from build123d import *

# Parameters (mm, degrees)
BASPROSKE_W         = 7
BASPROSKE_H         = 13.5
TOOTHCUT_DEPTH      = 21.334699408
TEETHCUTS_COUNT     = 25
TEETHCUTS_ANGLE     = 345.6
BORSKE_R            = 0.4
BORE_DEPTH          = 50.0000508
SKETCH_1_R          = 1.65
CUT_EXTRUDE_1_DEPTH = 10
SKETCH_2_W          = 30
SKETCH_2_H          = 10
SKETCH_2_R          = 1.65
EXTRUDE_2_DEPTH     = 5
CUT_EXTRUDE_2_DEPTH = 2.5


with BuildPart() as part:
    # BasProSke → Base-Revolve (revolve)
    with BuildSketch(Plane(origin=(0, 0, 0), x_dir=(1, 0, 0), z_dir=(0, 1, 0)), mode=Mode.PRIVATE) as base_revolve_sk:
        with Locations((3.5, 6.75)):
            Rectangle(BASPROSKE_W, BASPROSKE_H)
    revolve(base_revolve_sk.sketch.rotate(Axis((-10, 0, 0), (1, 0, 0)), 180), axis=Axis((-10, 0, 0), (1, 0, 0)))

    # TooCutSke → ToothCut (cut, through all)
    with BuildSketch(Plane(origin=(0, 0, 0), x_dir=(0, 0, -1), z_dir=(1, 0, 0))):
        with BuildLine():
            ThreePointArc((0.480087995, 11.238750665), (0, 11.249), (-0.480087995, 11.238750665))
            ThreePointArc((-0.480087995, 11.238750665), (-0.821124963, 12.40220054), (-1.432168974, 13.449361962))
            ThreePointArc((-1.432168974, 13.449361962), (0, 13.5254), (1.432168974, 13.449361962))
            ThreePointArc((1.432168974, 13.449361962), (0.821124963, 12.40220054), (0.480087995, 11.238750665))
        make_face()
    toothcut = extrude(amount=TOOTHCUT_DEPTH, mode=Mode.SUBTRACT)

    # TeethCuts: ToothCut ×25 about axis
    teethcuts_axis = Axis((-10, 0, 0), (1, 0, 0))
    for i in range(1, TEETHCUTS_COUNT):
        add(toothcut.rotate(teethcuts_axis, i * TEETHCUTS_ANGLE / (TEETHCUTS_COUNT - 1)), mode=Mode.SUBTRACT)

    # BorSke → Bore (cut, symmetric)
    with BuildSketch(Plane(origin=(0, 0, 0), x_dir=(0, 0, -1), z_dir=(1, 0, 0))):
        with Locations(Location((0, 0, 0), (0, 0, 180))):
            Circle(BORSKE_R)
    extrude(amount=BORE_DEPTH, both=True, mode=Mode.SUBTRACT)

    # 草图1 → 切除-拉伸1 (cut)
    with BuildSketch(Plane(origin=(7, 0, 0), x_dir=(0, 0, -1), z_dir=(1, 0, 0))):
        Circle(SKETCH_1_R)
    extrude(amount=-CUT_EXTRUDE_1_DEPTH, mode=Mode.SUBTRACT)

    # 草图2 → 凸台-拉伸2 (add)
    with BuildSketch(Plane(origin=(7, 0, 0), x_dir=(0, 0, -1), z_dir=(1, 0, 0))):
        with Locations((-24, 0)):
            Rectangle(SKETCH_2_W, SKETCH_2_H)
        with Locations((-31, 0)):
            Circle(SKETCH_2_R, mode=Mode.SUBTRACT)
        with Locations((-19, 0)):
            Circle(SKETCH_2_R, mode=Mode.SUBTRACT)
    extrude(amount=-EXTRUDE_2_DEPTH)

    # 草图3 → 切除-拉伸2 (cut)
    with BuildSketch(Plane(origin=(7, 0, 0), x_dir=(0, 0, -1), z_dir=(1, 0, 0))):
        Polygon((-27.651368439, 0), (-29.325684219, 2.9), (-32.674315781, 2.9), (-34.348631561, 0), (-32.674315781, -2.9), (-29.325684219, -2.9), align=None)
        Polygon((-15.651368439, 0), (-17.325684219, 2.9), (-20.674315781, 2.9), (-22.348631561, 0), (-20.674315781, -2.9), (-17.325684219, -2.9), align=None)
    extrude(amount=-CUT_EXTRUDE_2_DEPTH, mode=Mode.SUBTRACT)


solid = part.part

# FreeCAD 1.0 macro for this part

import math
import FreeCAD as App
import Part
import Sketcher

V = App.Vector
Q = App.Units.Quantity


def add_polygon(sketch, points):
    """Adds a closed chain of lines whose ends are joined by coincident constraints."""
    first, n = sketch.GeometryCount, len(points)
    for a, b in zip(points, points[1:] + points[:1]):
        sketch.addGeometry(Part.LineSegment(App.Vector(*a, 0), App.Vector(*b, 0)), False)
    for i in range(n):
        sketch.addConstraint(Sketcher.Constraint("Coincident", first + i, 2, first + (i + 1) % n, 1))

doc = App.newDocument("Part")
body = doc.addObject("PartDesign::Body", "Body")

# Sketch on XZ plane
sketch1 = body.newObject("Sketcher::SketchObject", "Sketch")
sketch1.AttachmentSupport = (doc.getObject("XZ_Plane"), [""])
sketch1.MapMode = "FlatFace"
add_polygon(sketch1, [(0, -13.5), (0, 0), (7, 0), (7, -13.5)])  # lines 0-3
sketch1.addConstraint([
    Sketcher.Constraint("Vertical", 0),
    Sketcher.Constraint("Horizontal", 1),
    Sketcher.Constraint("Vertical", 2),
    Sketcher.Constraint("Horizontal", 3),
    Sketcher.Constraint("Coincident", 0, 2, -1, 1),
    Sketcher.Constraint("DistanceX", 1, 1, 1, 2, 7.0),
    Sketcher.Constraint("DistanceY", 0, 1, 0, 2, 13.5),
])
revolution = body.newObject("PartDesign::Revolution", "Revolution")
revolution.Profile = sketch1
revolution.ReferenceAxis = (sketch1, ["H_Axis"])
revolution.Angle = 360

# Sketch on YZ plane
sketch2 = body.newObject("Sketcher::SketchObject", "Sketch001")
sketch2.AttachmentSupport = (doc.getObject("YZ_Plane"), [""])
sketch2.MapMode = "FlatFace"
sketch2.addGeometry([
    Part.ArcOfCircle(Part.Circle(V(0, 0, 0), V(0, 0, 1), 11.249), math.radians(-2.446028), math.radians(2.446028)),
    Part.ArcOfCircle(Part.Circle(V(10.424401, -5.413326, 0), V(0, 0, 1), 5), math.radians(52.771714), math.radians(80.626478)),
    Part.ArcOfCircle(Part.Circle(V(0, 0, 0), V(0, 0, 1), 13.5254), math.radians(-6.078294), math.radians(6.078294)),
    Part.ArcOfCircle(Part.Circle(V(10.424401, 5.413326, 0), V(0, 0, 1), 5), math.radians(-80.626478), math.radians(-52.771714)),
], False)
sketch2.addConstraint([
    Sketcher.Constraint("Coincident", 0, 1, 1, 2),
    Sketcher.Constraint("Coincident", 1, 1, 2, 1),
    Sketcher.Constraint("Coincident", 2, 2, 3, 2),
    Sketcher.Constraint("Coincident", 3, 1, 0, 2),
    Sketcher.Constraint("Coincident", 0, 3, -1, 1),
    Sketcher.Constraint("Coincident", 2, 3, -1, 1),
    Sketcher.Constraint("Equal", 1, 3),
    Sketcher.Constraint("Symmetric", 1, 3, 3, 3, -1),
    Sketcher.Constraint("Radius", 1, 5.0),
    Sketcher.Constraint("Radius", 0, 11.249),
    Sketcher.Constraint("Radius", 2, 13.5254),
    Sketcher.Constraint("DistanceX", -1, 1, 1, 3, 10.424401),
    Sketcher.Constraint("DistanceX", -1, 1, 0, 1, 11.238751),
])
pocket1 = body.newObject("PartDesign::Pocket", "Pocket")
pocket1.Profile = sketch2
pocket1.Type = "ThroughAll"
pocket1.Reversed = True
doc.recompute()

polarpattern = body.newObject("PartDesign::PolarPattern", "PolarPattern")
polarpattern.Originals = [pocket1]
polarpattern.Axis = (doc.getObject("X_Axis"), [""])
polarpattern.Angle = 360
polarpattern.Occurrences = 25
body.Tip = polarpattern

# Sketch on YZ plane
sketch3 = body.newObject("Sketcher::SketchObject", "Sketch002")
sketch3.AttachmentSupport = (doc.getObject("YZ_Plane"), [""])
sketch3.MapMode = "FlatFace"
sketch3.addGeometry(Part.Circle(V(0, 0, 0), V(0, 0, 1), 0.4), False)
sketch3.addConstraint([
    Sketcher.Constraint("Coincident", 0, 3, -1, 1),
    Sketcher.Constraint("Diameter", 0, 0.8),
])
pocket2 = body.newObject("PartDesign::Pocket", "Pocket001")
pocket2.Profile = sketch3
pocket2.Length = 100.000102
pocket2.Midplane = True

# Sketch on YZ plane
sketch4 = body.newObject("Sketcher::SketchObject", "Sketch003")
sketch4.AttachmentSupport = (doc.getObject("YZ_Plane"), [""])
sketch4.MapMode = "FlatFace"
sketch4.AttachmentOffset = App.Placement(V(0, 0, 7), App.Rotation())
sketch4.addGeometry(Part.Circle(V(0, 0, 0), V(0, 0, 1), 1.65), False)
sketch4.addConstraint([
    Sketcher.Constraint("Coincident", 0, 3, -1, 1),
    Sketcher.Constraint("Diameter", 0, 3.3),
])
pocket3 = body.newObject("PartDesign::Pocket", "Pocket002")
pocket3.Profile = sketch4
pocket3.Length = 10

# Sketch on YZ plane
sketch5 = body.newObject("Sketcher::SketchObject", "Sketch004")
sketch5.AttachmentSupport = (doc.getObject("YZ_Plane"), [""])
sketch5.MapMode = "FlatFace"
sketch5.AttachmentOffset = App.Placement(V(0, 0, 7), App.Rotation())
add_polygon(sketch5, [(5, 39), (-5, 39), (-5, 9), (5, 9)])  # lines 0-3
sketch5.addGeometry(Part.Circle(V(0, 31, 0), V(0, 0, 1), 1.65), False)  # 4
sketch5.addGeometry(Part.Circle(V(0, 19, 0), V(0, 0, 1), 1.65), False)  # 5
sketch5.addConstraint([
    Sketcher.Constraint("Horizontal", 0),
    Sketcher.Constraint("Vertical", 1),
    Sketcher.Constraint("Horizontal", 2),
    Sketcher.Constraint("Vertical", 3),
    Sketcher.Constraint("Equal", 4, 5),
    Sketcher.Constraint("PointOnObject", 4, 3, -2),
    Sketcher.Constraint("PointOnObject", 5, 3, -2),
    Sketcher.Constraint("Diameter", 4, 3.3),
    Sketcher.Constraint("DistanceX", 0, 2, 0, 1, 10.0),
    Sketcher.Constraint("DistanceY", 1, 2, 1, 1, 30.0),
    Sketcher.Constraint("DistanceY", -1, 1, 4, 3, 31.0),
    Sketcher.Constraint("DistanceY", -1, 1, 5, 3, 19.0),
    Sketcher.Constraint("DistanceX", 0, 2, -1, 1, 5.0),
    Sketcher.Constraint("DistanceY", -1, 1, 0, 2, 39.0),
])
pad1 = body.newObject("PartDesign::Pad", "Pad")
pad1.Profile = sketch5
pad1.Length = 5
pad1.Reversed = True

# Sketch on YZ plane
sketch6 = body.newObject("Sketcher::SketchObject", "Sketch005")
sketch6.AttachmentSupport = (doc.getObject("YZ_Plane"), [""])
sketch6.MapMode = "FlatFace"
sketch6.AttachmentOffset = App.Placement(V(0, 0, 7), App.Rotation())
add_polygon(sketch6, [(0, 27.651368), (2.9, 29.325684), (2.9, 32.674316), (0, 34.348632), (-2.9, 32.674316), (-2.9, 29.325684)])  # lines 0-5
add_polygon(sketch6, [(0, 15.651368), (2.9, 17.325684), (2.9, 20.674316), (0, 22.348632), (-2.9, 20.674316), (-2.9, 17.325684)])  # lines 6-11
sketch6.addConstraint([
    Sketcher.Constraint("Vertical", 1),
    Sketcher.Constraint("Vertical", 4),
    Sketcher.Constraint("Vertical", 7),
    Sketcher.Constraint("Vertical", 10),
    Sketcher.Constraint("Symmetric", 1, 2, 3, 2, -2),
    Sketcher.Constraint("Symmetric", 7, 2, 9, 2, -2),
    Sketcher.Constraint("PointOnObject", 2, 2, -2),
    Sketcher.Constraint("PointOnObject", 5, 2, -2),
    Sketcher.Constraint("PointOnObject", 8, 2, -2),
    Sketcher.Constraint("PointOnObject", 11, 2, -2),
    Sketcher.Constraint("Parallel", 0, 3),
    Sketcher.Constraint("Parallel", 2, 5),
    Sketcher.Constraint("Parallel", 3, 6),
    Sketcher.Constraint("Parallel", 5, 8),
    Sketcher.Constraint("Parallel", 8, 11),
    Sketcher.Constraint("Vertical", 1, 2, 6, 2),
    Sketcher.Constraint("Equal", 4, 7),
    Sketcher.Constraint("Angle", 0, Q("30 deg")),
    Sketcher.Constraint("DistanceY", 6, 2, 0, 2, 12.0),
    Sketcher.Constraint("DistanceX", -1, 1, 0, 2, 2.9),
    Sketcher.Constraint("DistanceY", 1, 1, 1, 2, 3.348632),
    Sketcher.Constraint("DistanceY", -1, 1, 2, 2, 34.348632),
])
pocket4 = body.newObject("PartDesign::Pocket", "Pocket003")
pocket4.Profile = sketch6
pocket4.Length = 2.5

doc.recompute()
